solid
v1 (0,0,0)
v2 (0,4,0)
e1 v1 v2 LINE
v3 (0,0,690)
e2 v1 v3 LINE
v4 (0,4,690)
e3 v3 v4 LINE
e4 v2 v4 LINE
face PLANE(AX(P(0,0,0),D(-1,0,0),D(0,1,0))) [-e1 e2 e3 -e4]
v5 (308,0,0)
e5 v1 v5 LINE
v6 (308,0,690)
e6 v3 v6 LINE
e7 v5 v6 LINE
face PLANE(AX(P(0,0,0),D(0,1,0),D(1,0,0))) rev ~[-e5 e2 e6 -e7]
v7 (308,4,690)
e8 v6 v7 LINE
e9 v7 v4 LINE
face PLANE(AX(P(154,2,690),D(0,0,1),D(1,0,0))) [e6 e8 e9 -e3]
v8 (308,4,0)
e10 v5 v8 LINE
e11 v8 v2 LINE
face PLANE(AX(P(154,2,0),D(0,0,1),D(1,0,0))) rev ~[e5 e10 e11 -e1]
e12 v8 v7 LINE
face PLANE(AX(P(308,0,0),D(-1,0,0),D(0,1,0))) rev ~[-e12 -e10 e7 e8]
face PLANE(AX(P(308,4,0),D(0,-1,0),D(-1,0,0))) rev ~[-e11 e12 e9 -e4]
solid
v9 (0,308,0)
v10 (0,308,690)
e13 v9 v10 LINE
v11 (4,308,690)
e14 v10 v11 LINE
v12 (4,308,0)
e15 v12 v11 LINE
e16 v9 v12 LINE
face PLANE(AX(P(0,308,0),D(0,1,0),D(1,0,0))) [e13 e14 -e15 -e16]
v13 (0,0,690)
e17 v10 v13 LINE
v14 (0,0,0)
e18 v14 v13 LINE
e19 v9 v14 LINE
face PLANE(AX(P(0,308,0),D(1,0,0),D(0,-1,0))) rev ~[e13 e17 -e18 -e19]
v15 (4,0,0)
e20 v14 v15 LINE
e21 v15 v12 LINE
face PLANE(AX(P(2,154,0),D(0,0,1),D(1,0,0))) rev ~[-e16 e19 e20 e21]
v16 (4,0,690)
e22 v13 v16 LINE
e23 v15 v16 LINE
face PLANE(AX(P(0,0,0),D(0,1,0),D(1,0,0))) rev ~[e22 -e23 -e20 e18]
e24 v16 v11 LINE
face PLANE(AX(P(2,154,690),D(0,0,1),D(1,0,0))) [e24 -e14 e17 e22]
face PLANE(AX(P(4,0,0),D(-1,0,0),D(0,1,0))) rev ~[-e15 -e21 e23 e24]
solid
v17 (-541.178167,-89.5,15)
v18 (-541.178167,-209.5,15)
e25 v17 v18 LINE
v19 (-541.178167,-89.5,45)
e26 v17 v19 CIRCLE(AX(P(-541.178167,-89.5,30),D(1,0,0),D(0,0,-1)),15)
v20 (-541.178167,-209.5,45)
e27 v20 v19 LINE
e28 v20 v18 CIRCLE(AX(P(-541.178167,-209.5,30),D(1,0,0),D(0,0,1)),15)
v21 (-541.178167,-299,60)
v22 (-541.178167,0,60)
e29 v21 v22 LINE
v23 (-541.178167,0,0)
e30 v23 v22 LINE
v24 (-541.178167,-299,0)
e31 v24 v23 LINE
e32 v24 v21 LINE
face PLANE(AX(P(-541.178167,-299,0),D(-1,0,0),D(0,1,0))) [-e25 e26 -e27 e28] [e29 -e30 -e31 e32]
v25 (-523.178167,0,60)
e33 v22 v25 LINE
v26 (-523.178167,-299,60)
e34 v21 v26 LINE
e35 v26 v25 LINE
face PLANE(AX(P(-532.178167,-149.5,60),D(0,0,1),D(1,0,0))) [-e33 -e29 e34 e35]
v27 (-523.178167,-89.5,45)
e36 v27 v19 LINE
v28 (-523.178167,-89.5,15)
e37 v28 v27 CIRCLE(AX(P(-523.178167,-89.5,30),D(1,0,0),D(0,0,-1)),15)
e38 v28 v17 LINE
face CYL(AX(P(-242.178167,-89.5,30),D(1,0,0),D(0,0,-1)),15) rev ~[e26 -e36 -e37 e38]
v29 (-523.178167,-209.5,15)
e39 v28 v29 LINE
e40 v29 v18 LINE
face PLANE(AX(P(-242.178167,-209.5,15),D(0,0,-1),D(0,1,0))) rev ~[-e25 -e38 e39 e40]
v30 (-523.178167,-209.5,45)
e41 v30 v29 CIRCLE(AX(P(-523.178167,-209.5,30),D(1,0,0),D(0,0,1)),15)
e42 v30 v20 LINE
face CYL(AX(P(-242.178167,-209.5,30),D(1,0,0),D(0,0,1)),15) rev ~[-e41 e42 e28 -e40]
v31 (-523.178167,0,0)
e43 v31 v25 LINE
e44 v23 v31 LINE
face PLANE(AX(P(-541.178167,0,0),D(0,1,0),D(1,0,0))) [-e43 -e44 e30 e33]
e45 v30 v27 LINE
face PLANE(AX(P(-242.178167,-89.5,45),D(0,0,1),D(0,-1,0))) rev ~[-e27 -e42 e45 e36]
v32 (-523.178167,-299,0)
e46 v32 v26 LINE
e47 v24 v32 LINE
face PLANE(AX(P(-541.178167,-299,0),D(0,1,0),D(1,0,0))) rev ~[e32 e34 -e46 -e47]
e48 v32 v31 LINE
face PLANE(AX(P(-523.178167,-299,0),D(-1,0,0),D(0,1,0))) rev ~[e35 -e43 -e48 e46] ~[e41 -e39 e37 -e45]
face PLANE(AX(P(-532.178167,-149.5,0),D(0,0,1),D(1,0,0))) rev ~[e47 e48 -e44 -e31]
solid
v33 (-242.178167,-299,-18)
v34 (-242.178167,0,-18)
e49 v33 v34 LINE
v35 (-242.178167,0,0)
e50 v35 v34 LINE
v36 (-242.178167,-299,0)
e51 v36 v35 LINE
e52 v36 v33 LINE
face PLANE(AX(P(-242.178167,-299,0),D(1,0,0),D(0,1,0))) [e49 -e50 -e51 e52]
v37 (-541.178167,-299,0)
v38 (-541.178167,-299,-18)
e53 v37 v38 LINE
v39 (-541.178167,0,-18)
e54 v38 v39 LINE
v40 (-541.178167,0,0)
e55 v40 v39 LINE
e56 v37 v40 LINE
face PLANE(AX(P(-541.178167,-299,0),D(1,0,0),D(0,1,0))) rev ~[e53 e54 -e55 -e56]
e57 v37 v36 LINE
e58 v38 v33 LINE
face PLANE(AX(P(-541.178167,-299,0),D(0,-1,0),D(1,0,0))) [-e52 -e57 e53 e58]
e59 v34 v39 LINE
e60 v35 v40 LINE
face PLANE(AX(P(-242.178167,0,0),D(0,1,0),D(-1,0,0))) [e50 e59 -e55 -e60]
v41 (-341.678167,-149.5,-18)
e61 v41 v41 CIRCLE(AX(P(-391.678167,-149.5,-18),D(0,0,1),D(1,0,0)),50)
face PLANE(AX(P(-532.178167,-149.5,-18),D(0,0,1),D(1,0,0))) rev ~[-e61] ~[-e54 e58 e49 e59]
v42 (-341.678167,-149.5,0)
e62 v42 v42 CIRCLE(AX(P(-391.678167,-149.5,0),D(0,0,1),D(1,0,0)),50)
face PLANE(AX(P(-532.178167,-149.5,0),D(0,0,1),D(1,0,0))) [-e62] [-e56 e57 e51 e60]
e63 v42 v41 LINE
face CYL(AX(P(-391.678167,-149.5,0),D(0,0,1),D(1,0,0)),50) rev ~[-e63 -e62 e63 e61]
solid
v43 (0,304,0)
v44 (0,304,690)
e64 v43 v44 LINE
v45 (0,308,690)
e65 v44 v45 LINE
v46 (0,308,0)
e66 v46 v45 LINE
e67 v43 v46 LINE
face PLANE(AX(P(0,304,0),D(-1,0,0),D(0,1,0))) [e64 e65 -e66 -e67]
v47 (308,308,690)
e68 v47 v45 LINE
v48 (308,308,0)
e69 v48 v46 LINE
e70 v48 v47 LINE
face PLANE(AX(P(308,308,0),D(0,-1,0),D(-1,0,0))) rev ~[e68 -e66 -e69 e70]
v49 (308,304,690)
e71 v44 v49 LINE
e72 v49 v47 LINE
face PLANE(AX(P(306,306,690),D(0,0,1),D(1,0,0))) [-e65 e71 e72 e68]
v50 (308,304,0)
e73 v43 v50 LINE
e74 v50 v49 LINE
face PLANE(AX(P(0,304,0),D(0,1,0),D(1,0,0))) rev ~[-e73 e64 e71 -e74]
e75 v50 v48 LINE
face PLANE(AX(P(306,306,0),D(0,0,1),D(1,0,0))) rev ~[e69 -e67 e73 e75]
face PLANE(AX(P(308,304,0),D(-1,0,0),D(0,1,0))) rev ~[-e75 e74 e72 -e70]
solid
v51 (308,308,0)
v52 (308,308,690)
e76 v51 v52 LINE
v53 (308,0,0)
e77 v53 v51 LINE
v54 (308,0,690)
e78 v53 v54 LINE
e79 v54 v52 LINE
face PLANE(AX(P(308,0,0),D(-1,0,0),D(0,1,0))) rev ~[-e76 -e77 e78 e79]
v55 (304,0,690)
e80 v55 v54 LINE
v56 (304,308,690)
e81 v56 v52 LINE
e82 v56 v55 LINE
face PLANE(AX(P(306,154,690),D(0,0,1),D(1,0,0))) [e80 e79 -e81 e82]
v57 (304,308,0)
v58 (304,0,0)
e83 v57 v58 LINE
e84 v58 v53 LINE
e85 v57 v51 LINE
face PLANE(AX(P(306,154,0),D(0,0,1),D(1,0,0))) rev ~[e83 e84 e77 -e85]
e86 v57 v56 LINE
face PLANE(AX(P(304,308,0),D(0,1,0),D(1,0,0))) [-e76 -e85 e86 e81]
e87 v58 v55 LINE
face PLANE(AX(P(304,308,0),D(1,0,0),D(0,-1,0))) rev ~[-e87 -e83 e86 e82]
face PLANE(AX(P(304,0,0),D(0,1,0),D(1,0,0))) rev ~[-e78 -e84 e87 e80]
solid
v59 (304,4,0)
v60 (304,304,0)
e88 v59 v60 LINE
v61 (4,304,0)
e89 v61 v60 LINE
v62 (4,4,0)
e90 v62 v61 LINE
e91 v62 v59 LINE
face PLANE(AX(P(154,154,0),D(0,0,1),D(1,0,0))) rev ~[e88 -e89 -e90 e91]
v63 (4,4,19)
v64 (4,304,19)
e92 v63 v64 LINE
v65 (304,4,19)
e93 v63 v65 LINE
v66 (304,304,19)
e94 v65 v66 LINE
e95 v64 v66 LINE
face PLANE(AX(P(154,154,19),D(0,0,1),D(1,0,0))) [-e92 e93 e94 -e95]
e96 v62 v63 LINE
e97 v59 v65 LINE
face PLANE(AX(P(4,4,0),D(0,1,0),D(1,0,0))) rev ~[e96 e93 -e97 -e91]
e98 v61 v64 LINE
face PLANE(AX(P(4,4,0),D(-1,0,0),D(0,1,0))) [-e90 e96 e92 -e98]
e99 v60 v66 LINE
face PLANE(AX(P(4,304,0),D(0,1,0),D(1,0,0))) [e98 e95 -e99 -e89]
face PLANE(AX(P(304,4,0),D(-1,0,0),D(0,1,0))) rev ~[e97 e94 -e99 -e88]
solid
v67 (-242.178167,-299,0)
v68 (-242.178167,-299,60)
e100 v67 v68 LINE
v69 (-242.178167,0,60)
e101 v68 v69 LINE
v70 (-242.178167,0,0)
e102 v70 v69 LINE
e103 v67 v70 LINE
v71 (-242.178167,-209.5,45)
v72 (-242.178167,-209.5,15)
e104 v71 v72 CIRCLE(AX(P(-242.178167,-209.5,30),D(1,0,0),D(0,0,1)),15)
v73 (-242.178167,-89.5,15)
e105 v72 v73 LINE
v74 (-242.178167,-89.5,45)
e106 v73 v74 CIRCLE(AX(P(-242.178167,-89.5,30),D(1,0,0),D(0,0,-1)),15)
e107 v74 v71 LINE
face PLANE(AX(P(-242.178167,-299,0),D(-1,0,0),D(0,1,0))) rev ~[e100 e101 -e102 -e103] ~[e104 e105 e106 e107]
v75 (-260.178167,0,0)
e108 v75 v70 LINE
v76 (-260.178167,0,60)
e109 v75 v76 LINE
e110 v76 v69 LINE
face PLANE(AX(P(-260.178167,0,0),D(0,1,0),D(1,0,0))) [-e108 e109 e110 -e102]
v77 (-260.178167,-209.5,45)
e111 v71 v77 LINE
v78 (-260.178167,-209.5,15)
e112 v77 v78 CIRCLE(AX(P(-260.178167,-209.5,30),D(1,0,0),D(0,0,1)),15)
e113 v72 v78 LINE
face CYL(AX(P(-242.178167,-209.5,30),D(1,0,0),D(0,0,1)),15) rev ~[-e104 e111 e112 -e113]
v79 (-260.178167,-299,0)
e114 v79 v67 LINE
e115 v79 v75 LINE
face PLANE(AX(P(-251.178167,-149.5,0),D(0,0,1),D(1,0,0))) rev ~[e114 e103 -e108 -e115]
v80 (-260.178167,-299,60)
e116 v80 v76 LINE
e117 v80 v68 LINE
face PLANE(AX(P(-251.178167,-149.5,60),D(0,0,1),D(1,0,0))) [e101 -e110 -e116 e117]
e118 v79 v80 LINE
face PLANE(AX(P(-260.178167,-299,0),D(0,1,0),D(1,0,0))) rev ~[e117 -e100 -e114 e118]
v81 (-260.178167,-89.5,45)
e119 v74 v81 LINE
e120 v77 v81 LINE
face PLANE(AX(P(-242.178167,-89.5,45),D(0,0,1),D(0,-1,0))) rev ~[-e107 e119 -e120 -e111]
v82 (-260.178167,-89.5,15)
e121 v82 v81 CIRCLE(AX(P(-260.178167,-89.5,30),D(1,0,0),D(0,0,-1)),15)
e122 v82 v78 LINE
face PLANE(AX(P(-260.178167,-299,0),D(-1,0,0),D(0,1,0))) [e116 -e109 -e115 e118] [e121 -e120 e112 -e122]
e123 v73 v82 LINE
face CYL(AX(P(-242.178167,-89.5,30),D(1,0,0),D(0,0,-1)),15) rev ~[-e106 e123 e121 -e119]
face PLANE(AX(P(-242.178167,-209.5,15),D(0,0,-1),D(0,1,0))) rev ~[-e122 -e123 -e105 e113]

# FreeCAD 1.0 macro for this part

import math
import FreeCAD as App
import Part
import Sketcher

doc = App.newDocument("Part")
body = doc.addObject("PartDesign::Body", "Body")

sketch1 = body.newObject("Sketcher::SketchObject", "Sketch")
sketch1.AttachmentSupport = (doc.getObject("XY_Plane"), [""])
sketch1.MapMode = "FlatFace"
sketch1.addGeometry(Part.LineSegment(App.Vector(4, 308, 0), App.Vector(0, 308, 0)), False)
sketch1.addGeometry(Part.LineSegment(App.Vector(0, 308, 0), App.Vector(0, 0, 0)), False)
sketch1.addGeometry(Part.LineSegment(App.Vector(0, 0, 0), App.Vector(4, 0, 0)), False)
sketch1.addGeometry(Part.LineSegment(App.Vector(4, 0, 0), App.Vector(4, 308, 0)), False)
sketch1.addConstraint(Sketcher.Constraint("Coincident", 0, 2, 1, 1))
sketch1.addConstraint(Sketcher.Constraint("Coincident", 1, 2, 2, 1))
sketch1.addConstraint(Sketcher.Constraint("Coincident", 2, 2, 3, 1))
sketch1.addConstraint(Sketcher.Constraint("Coincident", 3, 2, 0, 1))
sketch1.addConstraint(Sketcher.Constraint("Horizontal", 0))
sketch1.addConstraint(Sketcher.Constraint("Vertical", 1))
sketch1.addConstraint(Sketcher.Constraint("Horizontal", 2))
sketch1.addConstraint(Sketcher.Constraint("Vertical", 3))
sketch1.addConstraint(Sketcher.Constraint("Coincident", 1, 2, -1, 1))
sketch1.addConstraint(Sketcher.Constraint("DistanceX", 0, 2, 0, 1, 4.0))
sketch1.addConstraint(Sketcher.Constraint("DistanceY", 1, 2, 1, 1, 308.0))
pad1 = body.newObject("PartDesign::Pad", "Pad")
pad1.Profile = sketch1
pad1.Length = 690
body2 = doc.addObject("PartDesign::Body", "Body001")

sketch2 = body2.newObject("Sketcher::SketchObject", "Sketch001")
sketch2.AttachmentSupport = (doc.getObject("XY_Plane001"), [""])
sketch2.MapMode = "FlatFace"
sketch2.addGeometry(Part.LineSegment(App.Vector(308, 308, 0), App.Vector(304, 308, 0)), False)
sketch2.addGeometry(Part.LineSegment(App.Vector(304, 308, 0), App.Vector(304, 0, 0)), False)
sketch2.addGeometry(Part.LineSegment(App.Vector(304, 0, 0), App.Vector(308, 0, 0)), False)
sketch2.addGeometry(Part.LineSegment(App.Vector(308, 0, 0), App.Vector(308, 308, 0)), False)
sketch2.addConstraint(Sketcher.Constraint("Coincident", 0, 2, 1, 1))
sketch2.addConstraint(Sketcher.Constraint("Coincident", 1, 2, 2, 1))
sketch2.addConstraint(Sketcher.Constraint("Coincident", 2, 2, 3, 1))
sketch2.addConstraint(Sketcher.Constraint("Coincident", 3, 2, 0, 1))
sketch2.addConstraint(Sketcher.Constraint("Horizontal", 0))
sketch2.addConstraint(Sketcher.Constraint("Vertical", 1))
sketch2.addConstraint(Sketcher.Constraint("Horizontal", 2))
sketch2.addConstraint(Sketcher.Constraint("Vertical", 3))
sketch2.addConstraint(Sketcher.Constraint("PointOnObject", 1, 2, -1))
sketch2.addConstraint(Sketcher.Constraint("DistanceX", 0, 2, 0, 1, 4.0))
sketch2.addConstraint(Sketcher.Constraint("DistanceY", 1, 2, 1, 1, 308.0))
sketch2.addConstraint(Sketcher.Constraint("DistanceX", -1, 1, 0, 2, 304.0))
pad2 = body2.newObject("PartDesign::Pad", "Pad001")
pad2.Profile = sketch2
pad2.Length = 690
body3 = doc.addObject("PartDesign::Body", "Body002")

sketch3 = body3.newObject("Sketcher::SketchObject", "Sketch002")
sketch3.AttachmentSupport = (doc.getObject("XY_Plane002"), [""])
sketch3.MapMode = "FlatFace"
sketch3.addGeometry(Part.LineSegment(App.Vector(0, 4, 0), App.Vector(0, 0, 0)), False)
sketch3.addGeometry(Part.LineSegment(App.Vector(0, 0, 0), App.Vector(308, 0, 0)), False)
sketch3.addGeometry(Part.LineSegment(App.Vector(308, 0, 0), App.Vector(308, 4, 0)), False)
sketch3.addGeometry(Part.LineSegment(App.Vector(308, 4, 0), App.Vector(0, 4, 0)), False)
sketch3.addConstraint(Sketcher.Constraint("Coincident", 0, 2, 1, 1))
sketch3.addConstraint(Sketcher.Constraint("Coincident", 1, 2, 2, 1))
sketch3.addConstraint(Sketcher.Constraint("Coincident", 2, 2, 3, 1))
sketch3.addConstraint(Sketcher.Constraint("Coincident", 3, 2, 0, 1))
sketch3.addConstraint(Sketcher.Constraint("Vertical", 0))
sketch3.addConstraint(Sketcher.Constraint("Horizontal", 1))
sketch3.addConstraint(Sketcher.Constraint("Vertical", 2))
sketch3.addConstraint(Sketcher.Constraint("Horizontal", 3))
sketch3.addConstraint(Sketcher.Constraint("Coincident", 0, 2, -1, 1))
sketch3.addConstraint(Sketcher.Constraint("DistanceX", 1, 1, 1, 2, 308.0))
sketch3.addConstraint(Sketcher.Constraint("DistanceY", 0, 2, 0, 1, 4.0))
pad3 = body3.newObject("PartDesign::Pad", "Pad002")
pad3.Profile = sketch3
pad3.Length = 690
body4 = doc.addObject("PartDesign::Body", "Body003")

sketch4 = body4.newObject("Sketcher::SketchObject", "Sketch003")
sketch4.AttachmentSupport = (doc.getObject("XY_Plane003"), [""])
sketch4.MapMode = "FlatFace"
sketch4.addGeometry(Part.LineSegment(App.Vector(308, 304, 0), App.Vector(308, 308, 0)), False)
sketch4.addGeometry(Part.LineSegment(App.Vector(308, 308, 0), App.Vector(0, 308, 0)), False)
sketch4.addGeometry(Part.LineSegment(App.Vector(0, 308, 0), App.Vector(0, 304, 0)), False)
sketch4.addGeometry(Part.LineSegment(App.Vector(0, 304, 0), App.Vector(308, 304, 0)), False)
sketch4.addConstraint(Sketcher.Constraint("Coincident", 0, 2, 1, 1))
sketch4.addConstraint(Sketcher.Constraint("Coincident", 1, 2, 2, 1))
sketch4.addConstraint(Sketcher.Constraint("Coincident", 2, 2, 3, 1))
sketch4.addConstraint(Sketcher.Constraint("Coincident", 3, 2, 0, 1))
sketch4.addConstraint(Sketcher.Constraint("Vertical", 0))
sketch4.addConstraint(Sketcher.Constraint("Horizontal", 1))
sketch4.addConstraint(Sketcher.Constraint("Vertical", 2))
sketch4.addConstraint(Sketcher.Constraint("Horizontal", 3))
sketch4.addConstraint(Sketcher.Constraint("PointOnObject", 1, 2, -2))
sketch4.addConstraint(Sketcher.Constraint("DistanceX", 1, 2, 1, 1, 308.0))
sketch4.addConstraint(Sketcher.Constraint("DistanceY", 0, 1, 0, 2, 4.0))
sketch4.addConstraint(Sketcher.Constraint("DistanceY", -1, 1, 0, 2, 308.0))
pad4 = body4.newObject("PartDesign::Pad", "Pad003")
pad4.Profile = sketch4
pad4.Length = 690
body5 = doc.addObject("PartDesign::Body", "Body004")

sketch5 = body5.newObject("Sketcher::SketchObject", "Sketch004")
sketch5.AttachmentSupport = (doc.getObject("XY_Plane004"), [""])
sketch5.MapMode = "FlatFace"
sketch5.addGeometry(Part.LineSegment(App.Vector(4, 304, 0), App.Vector(4, 4, 0)), False)
sketch5.addGeometry(Part.LineSegment(App.Vector(4, 4, 0), App.Vector(304, 4, 0)), False)
sketch5.addGeometry(Part.LineSegment(App.Vector(304, 4, 0), App.Vector(304, 304, 0)), False)
sketch5.addGeometry(Part.LineSegment(App.Vector(304, 304, 0), App.Vector(4, 304, 0)), False)
sketch5.addConstraint(Sketcher.Constraint("Coincident", 0, 2, 1, 1))
sketch5.addConstraint(Sketcher.Constraint("Coincident", 1, 2, 2, 1))
sketch5.addConstraint(Sketcher.Constraint("Coincident", 2, 2, 3, 1))
sketch5.addConstraint(Sketcher.Constraint("Coincident", 3, 2, 0, 1))
sketch5.addConstraint(Sketcher.Constraint("Vertical", 0))
sketch5.addConstraint(Sketcher.Constraint("Horizontal", 1))
sketch5.addConstraint(Sketcher.Constraint("Vertical", 2))
sketch5.addConstraint(Sketcher.Constraint("Horizontal", 3))
sketch5.addConstraint(Sketcher.Constraint("Equal", 3, 0))
sketch5.addConstraint(Sketcher.Constraint("DistanceX", 1, 1, 1, 2, 300.0))
sketch5.addConstraint(Sketcher.Constraint("DistanceX", -1, 1, 0, 2, 4.0))
sketch5.addConstraint(Sketcher.Constraint("DistanceY", -1, 1, 0, 2, 4.0))
pad5 = body5.newObject("PartDesign::Pad", "Pad004")
pad5.Profile = sketch5
pad5.Length = 19
body6 = doc.addObject("PartDesign::Body", "Body005")

sketch6 = body6.newObject("Sketcher::SketchObject", "Sketch005")
sketch6.AttachmentSupport = (doc.getObject("XY_Plane005"), [""])
sketch6.MapMode = "FlatFace"
sketch6.addGeometry(Part.LineSegment(App.Vector(-541, 0, 0), App.Vector(-541, -299, 0)), False)
sketch6.addGeometry(Part.LineSegment(App.Vector(-541, -299, 0), App.Vector(-242, -299, 0)), False)
sketch6.addGeometry(Part.LineSegment(App.Vector(-242, -299, 0), App.Vector(-242, 0, 0)), False)
sketch6.addGeometry(Part.LineSegment(App.Vector(-242, 0, 0), App.Vector(-541, 0, 0)), False)
sketch6.addGeometry(Part.Circle(App.Vector(-392, -150, 0), App.Vector(0, 0, 1), 50), False)
sketch6.addConstraint(Sketcher.Constraint("Coincident", 0, 2, 1, 1))
sketch6.addConstraint(Sketcher.Constraint("Coincident", 1, 2, 2, 1))
sketch6.addConstraint(Sketcher.Constraint("Coincident", 2, 2, 3, 1))
sketch6.addConstraint(Sketcher.Constraint("Coincident", 3, 2, 0, 1))
sketch6.addConstraint(Sketcher.Constraint("Vertical", 0))
sketch6.addConstraint(Sketcher.Constraint("Horizontal", 1))
sketch6.addConstraint(Sketcher.Constraint("Vertical", 2))
sketch6.addConstraint(Sketcher.Constraint("Horizontal", 3))
sketch6.addConstraint(Sketcher.Constraint("PointOnObject", 2, 2, -1))
sketch6.addConstraint(Sketcher.Constraint("Equal", 3, 0))
sketch6.addConstraint(Sketcher.Constraint("Diameter", 4, 100.0))
sketch6.addConstraint(Sketcher.Constraint("DistanceX", 1, 1, 1, 2, 299.0))
sketch6.addConstraint(Sketcher.Constraint("DistanceY", 4, 3, -1, 1, 149.5))
sketch6.addConstraint(Sketcher.Constraint("DistanceX", 0, 2, 4, 3, 149.5))
sketch6.addConstraint(Sketcher.Constraint("DistanceX", 4, 3, -1, 1, 391.678167))
pad6 = body6.newObject("PartDesign::Pad", "Pad005")
pad6.Profile = sketch6
pad6.Length = 18
pad6.Reversed = True
body7 = doc.addObject("PartDesign::Body", "Body006")

sketch7 = body7.newObject("Sketcher::SketchObject", "Sketch006")
sketch7.AttachmentSupport = (doc.getObject("XY_Plane006"), [""])
sketch7.MapMode = "FlatFace"
sketch7.addGeometry(Part.LineSegment(App.Vector(-541, 0, 0), App.Vector(-541, -299, 0)), False)
sketch7.addGeometry(Part.LineSegment(App.Vector(-541, -299, 0), App.Vector(-523, -299, 0)), False)
sketch7.addGeometry(Part.LineSegment(App.Vector(-523, -299, 0), App.Vector(-523, 0, 0)), False)
sketch7.addGeometry(Part.LineSegment(App.Vector(-523, 0, 0), App.Vector(-541, 0, 0)), False)
sketch7.addConstraint(Sketcher.Constraint("Coincident", 0, 2, 1, 1))
sketch7.addConstraint(Sketcher.Constraint("Coincident", 1, 2, 2, 1))
sketch7.addConstraint(Sketcher.Constraint("Coincident", 2, 2, 3, 1))
sketch7.addConstraint(Sketcher.Constraint("Coincident", 3, 2, 0, 1))
sketch7.addConstraint(Sketcher.Constraint("Vertical", 0))
sketch7.addConstraint(Sketcher.Constraint("Horizontal", 1))
sketch7.addConstraint(Sketcher.Constraint("Vertical", 2))
sketch7.addConstraint(Sketcher.Constraint("Horizontal", 3))
sketch7.addConstraint(Sketcher.Constraint("PointOnObject", 2, 2, -1))
sketch7.addConstraint(Sketcher.Constraint("DistanceX", 1, 1, 1, 2, 18.0))
sketch7.addConstraint(Sketcher.Constraint("DistanceY", 0, 2, 0, 1, 299.0))
sketch7.addConstraint(Sketcher.Constraint("DistanceX", 0, 2, -1, 1, 541.178167))
pad7 = body7.newObject("PartDesign::Pad", "Pad006")
pad7.Profile = sketch7
pad7.Length = 60
body8 = doc.addObject("PartDesign::Body", "Body007")

sketch8 = body8.newObject("Sketcher::SketchObject", "Sketch007")
sketch8.AttachmentSupport = (doc.getObject("XY_Plane007"), [""])
sketch8.MapMode = "FlatFace"
sketch8.addGeometry(Part.LineSegment(App.Vector(-260, 0, 0), App.Vector(-260, -299, 0)), False)
sketch8.addGeometry(Part.LineSegment(App.Vector(-260, -299, 0), App.Vector(-242, -299, 0)), False)
sketch8.addGeometry(Part.LineSegment(App.Vector(-242, -299, 0), App.Vector(-242, 0, 0)), False)
sketch8.addGeometry(Part.LineSegment(App.Vector(-242, 0, 0), App.Vector(-260, 0, 0)), False)
sketch8.addConstraint(Sketcher.Constraint("Coincident", 0, 2, 1, 1))
sketch8.addConstraint(Sketcher.Constraint("Coincident", 1, 2, 2, 1))
sketch8.addConstraint(Sketcher.Constraint("Coincident", 2, 2, 3, 1))
sketch8.addConstraint(Sketcher.Constraint("Coincident", 3, 2, 0, 1))
sketch8.addConstraint(Sketcher.Constraint("Vertical", 0))
sketch8.addConstraint(Sketcher.Constraint("Horizontal", 1))
sketch8.addConstraint(Sketcher.Constraint("Vertical", 2))
sketch8.addConstraint(Sketcher.Constraint("Horizontal", 3))
sketch8.addConstraint(Sketcher.Constraint("PointOnObject", 2, 2, -1))
sketch8.addConstraint(Sketcher.Constraint("DistanceX", 1, 1, 1, 2, 18.0))
sketch8.addConstraint(Sketcher.Constraint("DistanceY", 0, 2, 0, 1, 299.0))
sketch8.addConstraint(Sketcher.Constraint("DistanceX", 0, 2, -1, 1, 260.178167))
pad8 = body8.newObject("PartDesign::Pad", "Pad007")
pad8.Profile = sketch8
pad8.Length = 60
body9 = doc.addObject("PartDesign::Body", "Body008")

sketch9 = body9.newObject("Sketcher::SketchObject", "Sketch008")
sketch9.AttachmentSupport = (doc.getObject("YZ_Plane008"), [""])
sketch9.MapMode = "FlatFace"
sketch9.AttachmentOffset = App.Placement(App.Vector(0, 0, -242.178167), App.Rotation())
sketch9.addGeometry(Part.LineSegment(App.Vector(-90, 45, 0), App.Vector(-210, 45, 0)), False)
sketch9.addGeometry(Part.ArcOfCircle(Part.Circle(App.Vector(-210, 30, 0), App.Vector(0, 0, 1), 15), math.radians(90), math.radians(270)), False)
sketch9.addGeometry(Part.LineSegment(App.Vector(-210, 15, 0), App.Vector(-90, 15, 0)), False)
sketch9.addGeometry(Part.ArcOfCircle(Part.Circle(App.Vector(-90, 30, 0), App.Vector(0, 0, 1), 15), math.radians(-90), math.radians(90)), False)
sketch9.addConstraint(Sketcher.Constraint("Tangent", 0, 2, 1, 1))
sketch9.addConstraint(Sketcher.Constraint("Tangent", 1, 2, 2, 1))
sketch9.addConstraint(Sketcher.Constraint("Tangent", 2, 2, 3, 1))
sketch9.addConstraint(Sketcher.Constraint("Tangent", 3, 2, 0, 1))
sketch9.addConstraint(Sketcher.Constraint("Horizontal", 0))
sketch9.addConstraint(Sketcher.Constraint("Horizontal", 2))
sketch9.addConstraint(Sketcher.Constraint("Radius", 1, 15.0))
sketch9.addConstraint(Sketcher.Constraint("DistanceX", 0, 2, 0, 1, 120.0))
sketch9.addConstraint(Sketcher.Constraint("DistanceY", -1, 1, 1, 3, 30.0))
sketch9.addConstraint(Sketcher.Constraint("DistanceX", 1, 3, -1, 1, 209.5))
pad9 = body9.newObject("PartDesign::Pad", "Pad008")
pad9.Profile = sketch9
pad9.Length = 299.001
pad9.Reversed = True
doc.recompute()

body10 = doc.addObject("PartDesign::Body", "Body009")
body10.BaseFeature = body9
boolean = body7.newObject("PartDesign::Boolean", "Boolean")
boolean.Type = "Cut"
boolean.addObjects([body10])
doc.recompute()

boolean2 = body8.newObject("PartDesign::Boolean", "Boolean001")
boolean2.Type = "Cut"
boolean2.addObjects([body9])

doc.recompute()
